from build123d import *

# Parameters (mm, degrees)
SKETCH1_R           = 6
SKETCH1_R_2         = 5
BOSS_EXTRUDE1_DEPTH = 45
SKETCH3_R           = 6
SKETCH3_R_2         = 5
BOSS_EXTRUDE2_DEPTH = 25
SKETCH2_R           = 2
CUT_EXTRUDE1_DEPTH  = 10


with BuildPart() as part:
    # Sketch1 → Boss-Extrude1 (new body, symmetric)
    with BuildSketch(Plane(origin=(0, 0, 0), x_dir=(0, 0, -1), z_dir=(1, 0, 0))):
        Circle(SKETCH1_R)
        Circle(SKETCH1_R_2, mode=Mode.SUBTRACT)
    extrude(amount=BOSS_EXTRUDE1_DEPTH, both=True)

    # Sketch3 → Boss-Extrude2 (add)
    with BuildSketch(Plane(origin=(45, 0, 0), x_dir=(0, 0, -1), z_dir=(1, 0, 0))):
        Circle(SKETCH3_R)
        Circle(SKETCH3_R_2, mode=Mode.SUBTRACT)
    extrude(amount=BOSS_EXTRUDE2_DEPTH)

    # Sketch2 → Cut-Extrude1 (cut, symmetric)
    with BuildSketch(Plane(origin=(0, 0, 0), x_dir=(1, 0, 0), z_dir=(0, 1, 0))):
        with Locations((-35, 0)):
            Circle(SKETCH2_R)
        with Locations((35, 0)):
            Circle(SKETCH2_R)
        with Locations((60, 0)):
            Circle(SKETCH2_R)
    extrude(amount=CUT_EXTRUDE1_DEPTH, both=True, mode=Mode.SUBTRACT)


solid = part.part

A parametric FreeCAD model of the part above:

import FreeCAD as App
import Part
import Sketcher
from FreeCAD import Vector

doc = App.newDocument("Part")
body = doc.addObject("PartDesign::Body", "Body")

sketch1 = body.newObject("Sketcher::SketchObject", "Sketch")
sketch1.AttachmentSupport = (doc.getObject("YZ_Plane"), [""])
sketch1.MapMode = "FlatFace"
sketch1.addGeometry([
    Part.Circle(Vector(0, 0, 0), Vector(0, 0, 1), 6),
    Part.Circle(Vector(0, 0, 0), Vector(0, 0, 1), 5),
], False)
sketch1.addConstraint([
    Sketcher.Constraint("Coincident", 0, 3, -1, 1),
    Sketcher.Constraint("Coincident", 1, 3, -1, 1),
    Sketcher.Constraint("Diameter", 0, 12.0),
    Sketcher.Constraint("Diameter", 1, 10.0),
])
pad1 = body.newObject("PartDesign::Pad", "Pad")
pad1.Profile = sketch1
pad1.Length = 90
pad1.Midplane = True

sketch2 = body.newObject("Sketcher::SketchObject", "Sketch001")
sketch2.AttachmentSupport = (doc.getObject("YZ_Plane"), [""])
sketch2.MapMode = "FlatFace"
sketch2.AttachmentOffset = App.Placement(Vector(0, 0, 45), App.Rotation())
sketch2.addGeometry([
    Part.Circle(Vector(0, 0, 0), Vector(0, 0, 1), 6),
    Part.Circle(Vector(0, 0, 0), Vector(0, 0, 1), 5),
], False)
sketch2.addConstraint([
    Sketcher.Constraint("Coincident", 0, 3, -1, 1),
    Sketcher.Constraint("Coincident", 1, 3, -1, 1),
    Sketcher.Constraint("Diameter", 0, 12.0),
    Sketcher.Constraint("Diameter", 1, 10.0),
])
pad2 = body.newObject("PartDesign::Pad", "Pad001")
pad2.Profile = sketch2
pad2.Length = 25

sketch3 = body.newObject("Sketcher::SketchObject", "Sketch002")
sketch3.AttachmentSupport = (doc.getObject("XZ_Plane"), [""])
sketch3.MapMode = "FlatFace"
sketch3.addGeometry([
    Part.Circle(Vector(-35, 0, 0), Vector(0, 0, 1), 2),
    Part.Circle(Vector(35, 0, 0), Vector(0, 0, 1), 2),
    Part.Circle(Vector(60, 0, 0), Vector(0, 0, 1), 2),
], False)
sketch3.addConstraint([
    Sketcher.Constraint("Equal", 0, 1),
    Sketcher.Constraint("Equal", 1, 2),
    Sketcher.Constraint("Symmetric", 0, 3, 1, 3, -1, 1),
    Sketcher.Constraint("PointOnObject", 0, 3, -1),
    Sketcher.Constraint("PointOnObject", 2, 3, -1),
    Sketcher.Constraint("Diameter", 0, 4.0),
    Sketcher.Constraint("DistanceX", 0, 3, -1, 1, 35.0),
    Sketcher.Constraint("DistanceX", -1, 1, 2, 3, 60.0),
])
pocket1 = body.newObject("PartDesign::Pocket", "Pocket")
pocket1.Profile = sketch3
pocket1.Length = 20
pocket1.Midplane = True

doc.recompute()
